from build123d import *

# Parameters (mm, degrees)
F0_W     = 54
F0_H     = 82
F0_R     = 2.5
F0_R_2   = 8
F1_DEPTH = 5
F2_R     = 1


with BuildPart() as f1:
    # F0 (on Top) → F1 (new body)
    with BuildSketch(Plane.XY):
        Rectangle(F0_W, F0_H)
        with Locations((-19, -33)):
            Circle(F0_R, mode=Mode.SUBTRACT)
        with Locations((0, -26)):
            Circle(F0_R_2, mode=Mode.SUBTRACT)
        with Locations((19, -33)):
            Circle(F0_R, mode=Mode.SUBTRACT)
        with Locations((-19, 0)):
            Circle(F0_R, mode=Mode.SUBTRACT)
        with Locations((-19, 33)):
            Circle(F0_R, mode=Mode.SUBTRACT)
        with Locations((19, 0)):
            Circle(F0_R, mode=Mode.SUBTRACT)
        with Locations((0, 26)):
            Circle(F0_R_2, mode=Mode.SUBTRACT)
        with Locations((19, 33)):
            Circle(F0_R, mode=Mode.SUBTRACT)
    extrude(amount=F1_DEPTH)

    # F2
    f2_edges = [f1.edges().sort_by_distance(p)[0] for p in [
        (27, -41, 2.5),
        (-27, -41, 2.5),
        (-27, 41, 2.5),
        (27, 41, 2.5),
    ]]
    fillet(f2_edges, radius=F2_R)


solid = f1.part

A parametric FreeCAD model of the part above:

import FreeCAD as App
import Part
import Sketcher

V = App.Vector


def edges_at(feature, points):
    """Names of the edges that pass closest to the given points."""
    edges = feature.Shape.Edges
    near = lambda p: min(range(len(edges)), key=lambda i: edges[i].distToShape(Part.Vertex(*p))[0])
    return sorted({f"Edge{near(p) + 1}" for p in points})

doc = App.newDocument("Part")
body = doc.addObject("PartDesign::Body", "Body")

# Sketch on XY plane
sketch1 = doc.addObject("Sketcher::SketchObject", "Sketch")
body.addObject(sketch1)
sketch1.AttachmentSupport = (doc.XY_Plane, [""])
sketch1.MapMode = "FlatFace"
sketch1.addGeometry([
    Part.LineSegment(V(-27, 41, 0), V(-27, -41, 0)),  # 0
    Part.LineSegment(V(-27, -41, 0), V(27, -41, 0)),  # 1
    Part.LineSegment(V(27, -41, 0), V(27, 41, 0)),  # 2
    Part.LineSegment(V(27, 41, 0), V(-27, 41, 0)),  # 3
    Part.Circle(V(-19, -33, 0), V(0, 0, 1), 2.5),  # 4
    Part.Circle(V(0, -26, 0), V(0, 0, 1), 8),  # 5
    Part.Circle(V(19, -33, 0), V(0, 0, 1), 2.5),  # 6
    Part.Circle(V(-19, 0, 0), V(0, 0, 1), 2.5),  # 7
    Part.Circle(V(-19, 33, 0), V(0, 0, 1), 2.5),  # 8
    Part.Circle(V(19, 0, 0), V(0, 0, 1), 2.5),  # 9
    Part.Circle(V(0, 26, 0), V(0, 0, 1), 8),  # 10
    Part.Circle(V(19, 33, 0), V(0, 0, 1), 2.5),  # 11
], False)
sketch1.addConstraint([
    Sketcher.Constraint("Coincident", 0, 2, 1, 1),
    Sketcher.Constraint("Coincident", 1, 2, 2, 1),
    Sketcher.Constraint("Coincident", 2, 2, 3, 1),
    Sketcher.Constraint("Coincident", 3, 2, 0, 1),
    Sketcher.Constraint("Vertical", 0),
    Sketcher.Constraint("Horizontal", 1),
    Sketcher.Constraint("Vertical", 2),
    Sketcher.Constraint("Horizontal", 3),
    Sketcher.Constraint("Equal", 4, 6),
    Sketcher.Constraint("Equal", 6, 7),
    Sketcher.Constraint("Equal", 7, 8),
    Sketcher.Constraint("Equal", 8, 9),
    Sketcher.Constraint("Equal", 5, 10),
    Sketcher.Constraint("Equal", 9, 11),
    Sketcher.Constraint("Symmetric", 6, 3, 8, 3, -1, 1),
    Sketcher.Constraint("Symmetric", 7, 3, 9, 3, -1, 1),
    Sketcher.Constraint("Symmetric", 5, 3, 10, 3, -1, 1),
    Sketcher.Constraint("Symmetric", 4, 3, 11, 3, -1, 1),
    Sketcher.Constraint("Symmetric", 0, 2, 2, 2, -1, 1),
    Sketcher.Constraint("Symmetric", 4, 3, 6, 3, -2),
    Sketcher.Constraint("PointOnObject", 5, 3, -2),
    Sketcher.Constraint("PointOnObject", 7, 3, -1),
    Sketcher.Constraint("Vertical", 4, 3, 7, 3),
    Sketcher.Constraint("Diameter", 4, 5.0),
    Sketcher.Constraint("Diameter", 5, 16.0),
    Sketcher.Constraint("DistanceX", 1, 1, 1, 2, 54.0),
    Sketcher.Constraint("DistanceY", 0, 2, 0, 1, 82.0),
    Sketcher.Constraint("DistanceX", 4, 3, -1, 1, 19.0),
    Sketcher.Constraint("DistanceY", 4, 3, -1, 1, 33.0),
    Sketcher.Constraint("DistanceY", 5, 3, -1, 1, 26.0),
])
pad1 = doc.addObject("PartDesign::Pad", "Pad")
body.addObject(pad1)
pad1.Profile = sketch1
pad1.Length = 5
doc.recompute()

fillet = doc.addObject("PartDesign::Fillet", "Fillet")
body.addObject(fillet)
fillet.Base = (pad1, edges_at(pad1, [
    (27, -41, 2.5),
    (-27, -41, 2.5),
    (-27, 41, 2.5),
    (27, 41, 2.5),
]))
fillet.Radius = 1

doc.recompute()
